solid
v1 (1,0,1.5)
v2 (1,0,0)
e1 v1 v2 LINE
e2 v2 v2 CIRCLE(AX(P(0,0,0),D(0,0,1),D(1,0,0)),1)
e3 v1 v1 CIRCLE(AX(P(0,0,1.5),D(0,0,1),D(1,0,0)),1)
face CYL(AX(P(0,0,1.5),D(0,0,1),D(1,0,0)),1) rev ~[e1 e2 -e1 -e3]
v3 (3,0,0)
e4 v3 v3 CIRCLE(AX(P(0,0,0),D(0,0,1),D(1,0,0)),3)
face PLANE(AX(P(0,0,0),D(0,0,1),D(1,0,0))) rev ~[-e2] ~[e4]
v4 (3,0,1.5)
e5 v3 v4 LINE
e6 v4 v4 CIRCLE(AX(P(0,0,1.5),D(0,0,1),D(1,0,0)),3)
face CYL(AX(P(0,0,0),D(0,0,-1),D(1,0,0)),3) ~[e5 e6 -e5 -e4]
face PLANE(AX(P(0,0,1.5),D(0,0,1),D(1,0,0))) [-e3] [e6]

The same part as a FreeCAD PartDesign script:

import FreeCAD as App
import Part
import Sketcher
from FreeCAD import Vector
Q = App.Units.Quantity

doc = App.newDocument("Part")
params = doc.addObject("Spreadsheet::Sheet", "Params")
for row, (alias, value) in enumerate([
    ("sketch1_diameter", "6 mm"),
    ("pad1_length", "1.5 mm"),
    ("sketch2_diameter", "2 mm"),
    ("pocket1_length", "1.5 mm"),
], start=1):
    params.set(f"A{row}", alias)
    params.set(f"B{row}", "=" + value)
    params.setAlias(f"B{row}", alias)

body = doc.addObject("PartDesign::Body", "Body")

# Sketch on XY plane
sketch1 = doc.addObject("Sketcher::SketchObject", "Sketch")
body.addObject(sketch1)
sketch1.AttachmentSupport = (doc.XY_Plane, [""])
sketch1.MapMode = "FlatFace"
sketch1.addGeometry(Part.Circle(Vector(0, 0, 0), Vector(0, 0, 1), 3), False)
sketch1.addConstraint([
    Sketcher.Constraint("Coincident", 0, 3, -1, 1),
    Sketcher.Constraint("Diameter", 0, Q("6 mm")),
])
sketch1.setExpression("Constraints[1]", "Params.sketch1_diameter")
pad1 = doc.addObject("PartDesign::Pad", "Pad")
body.addObject(pad1)
pad1.Profile = sketch1
pad1.setExpression("Length", "Params.pad1_length")

# Sketch on XY plane
sketch2 = doc.addObject("Sketcher::SketchObject", "Sketch001")
body.addObject(sketch2)
sketch2.AttachmentSupport = (doc.XY_Plane, [""])
sketch2.MapMode = "FlatFace"
sketch2.AttachmentOffset = App.Placement(Vector(0, 0, 1.5), App.Rotation())
sketch2.addGeometry(Part.Circle(Vector(0, 0, 0), Vector(0, 0, 1), 1), False)
sketch2.addConstraint([
    Sketcher.Constraint("Coincident", 0, 3, -1, 1),
    Sketcher.Constraint("Diameter", 0, Q("2 mm")),
])
sketch2.setExpression("Constraints[1]", "Params.sketch2_diameter")
pocket1 = doc.addObject("PartDesign::Pocket", "Pocket")
body.addObject(pocket1)
pocket1.Profile = sketch2
pocket1.setExpression("Length", "Params.pocket1_length")

doc.recompute()
